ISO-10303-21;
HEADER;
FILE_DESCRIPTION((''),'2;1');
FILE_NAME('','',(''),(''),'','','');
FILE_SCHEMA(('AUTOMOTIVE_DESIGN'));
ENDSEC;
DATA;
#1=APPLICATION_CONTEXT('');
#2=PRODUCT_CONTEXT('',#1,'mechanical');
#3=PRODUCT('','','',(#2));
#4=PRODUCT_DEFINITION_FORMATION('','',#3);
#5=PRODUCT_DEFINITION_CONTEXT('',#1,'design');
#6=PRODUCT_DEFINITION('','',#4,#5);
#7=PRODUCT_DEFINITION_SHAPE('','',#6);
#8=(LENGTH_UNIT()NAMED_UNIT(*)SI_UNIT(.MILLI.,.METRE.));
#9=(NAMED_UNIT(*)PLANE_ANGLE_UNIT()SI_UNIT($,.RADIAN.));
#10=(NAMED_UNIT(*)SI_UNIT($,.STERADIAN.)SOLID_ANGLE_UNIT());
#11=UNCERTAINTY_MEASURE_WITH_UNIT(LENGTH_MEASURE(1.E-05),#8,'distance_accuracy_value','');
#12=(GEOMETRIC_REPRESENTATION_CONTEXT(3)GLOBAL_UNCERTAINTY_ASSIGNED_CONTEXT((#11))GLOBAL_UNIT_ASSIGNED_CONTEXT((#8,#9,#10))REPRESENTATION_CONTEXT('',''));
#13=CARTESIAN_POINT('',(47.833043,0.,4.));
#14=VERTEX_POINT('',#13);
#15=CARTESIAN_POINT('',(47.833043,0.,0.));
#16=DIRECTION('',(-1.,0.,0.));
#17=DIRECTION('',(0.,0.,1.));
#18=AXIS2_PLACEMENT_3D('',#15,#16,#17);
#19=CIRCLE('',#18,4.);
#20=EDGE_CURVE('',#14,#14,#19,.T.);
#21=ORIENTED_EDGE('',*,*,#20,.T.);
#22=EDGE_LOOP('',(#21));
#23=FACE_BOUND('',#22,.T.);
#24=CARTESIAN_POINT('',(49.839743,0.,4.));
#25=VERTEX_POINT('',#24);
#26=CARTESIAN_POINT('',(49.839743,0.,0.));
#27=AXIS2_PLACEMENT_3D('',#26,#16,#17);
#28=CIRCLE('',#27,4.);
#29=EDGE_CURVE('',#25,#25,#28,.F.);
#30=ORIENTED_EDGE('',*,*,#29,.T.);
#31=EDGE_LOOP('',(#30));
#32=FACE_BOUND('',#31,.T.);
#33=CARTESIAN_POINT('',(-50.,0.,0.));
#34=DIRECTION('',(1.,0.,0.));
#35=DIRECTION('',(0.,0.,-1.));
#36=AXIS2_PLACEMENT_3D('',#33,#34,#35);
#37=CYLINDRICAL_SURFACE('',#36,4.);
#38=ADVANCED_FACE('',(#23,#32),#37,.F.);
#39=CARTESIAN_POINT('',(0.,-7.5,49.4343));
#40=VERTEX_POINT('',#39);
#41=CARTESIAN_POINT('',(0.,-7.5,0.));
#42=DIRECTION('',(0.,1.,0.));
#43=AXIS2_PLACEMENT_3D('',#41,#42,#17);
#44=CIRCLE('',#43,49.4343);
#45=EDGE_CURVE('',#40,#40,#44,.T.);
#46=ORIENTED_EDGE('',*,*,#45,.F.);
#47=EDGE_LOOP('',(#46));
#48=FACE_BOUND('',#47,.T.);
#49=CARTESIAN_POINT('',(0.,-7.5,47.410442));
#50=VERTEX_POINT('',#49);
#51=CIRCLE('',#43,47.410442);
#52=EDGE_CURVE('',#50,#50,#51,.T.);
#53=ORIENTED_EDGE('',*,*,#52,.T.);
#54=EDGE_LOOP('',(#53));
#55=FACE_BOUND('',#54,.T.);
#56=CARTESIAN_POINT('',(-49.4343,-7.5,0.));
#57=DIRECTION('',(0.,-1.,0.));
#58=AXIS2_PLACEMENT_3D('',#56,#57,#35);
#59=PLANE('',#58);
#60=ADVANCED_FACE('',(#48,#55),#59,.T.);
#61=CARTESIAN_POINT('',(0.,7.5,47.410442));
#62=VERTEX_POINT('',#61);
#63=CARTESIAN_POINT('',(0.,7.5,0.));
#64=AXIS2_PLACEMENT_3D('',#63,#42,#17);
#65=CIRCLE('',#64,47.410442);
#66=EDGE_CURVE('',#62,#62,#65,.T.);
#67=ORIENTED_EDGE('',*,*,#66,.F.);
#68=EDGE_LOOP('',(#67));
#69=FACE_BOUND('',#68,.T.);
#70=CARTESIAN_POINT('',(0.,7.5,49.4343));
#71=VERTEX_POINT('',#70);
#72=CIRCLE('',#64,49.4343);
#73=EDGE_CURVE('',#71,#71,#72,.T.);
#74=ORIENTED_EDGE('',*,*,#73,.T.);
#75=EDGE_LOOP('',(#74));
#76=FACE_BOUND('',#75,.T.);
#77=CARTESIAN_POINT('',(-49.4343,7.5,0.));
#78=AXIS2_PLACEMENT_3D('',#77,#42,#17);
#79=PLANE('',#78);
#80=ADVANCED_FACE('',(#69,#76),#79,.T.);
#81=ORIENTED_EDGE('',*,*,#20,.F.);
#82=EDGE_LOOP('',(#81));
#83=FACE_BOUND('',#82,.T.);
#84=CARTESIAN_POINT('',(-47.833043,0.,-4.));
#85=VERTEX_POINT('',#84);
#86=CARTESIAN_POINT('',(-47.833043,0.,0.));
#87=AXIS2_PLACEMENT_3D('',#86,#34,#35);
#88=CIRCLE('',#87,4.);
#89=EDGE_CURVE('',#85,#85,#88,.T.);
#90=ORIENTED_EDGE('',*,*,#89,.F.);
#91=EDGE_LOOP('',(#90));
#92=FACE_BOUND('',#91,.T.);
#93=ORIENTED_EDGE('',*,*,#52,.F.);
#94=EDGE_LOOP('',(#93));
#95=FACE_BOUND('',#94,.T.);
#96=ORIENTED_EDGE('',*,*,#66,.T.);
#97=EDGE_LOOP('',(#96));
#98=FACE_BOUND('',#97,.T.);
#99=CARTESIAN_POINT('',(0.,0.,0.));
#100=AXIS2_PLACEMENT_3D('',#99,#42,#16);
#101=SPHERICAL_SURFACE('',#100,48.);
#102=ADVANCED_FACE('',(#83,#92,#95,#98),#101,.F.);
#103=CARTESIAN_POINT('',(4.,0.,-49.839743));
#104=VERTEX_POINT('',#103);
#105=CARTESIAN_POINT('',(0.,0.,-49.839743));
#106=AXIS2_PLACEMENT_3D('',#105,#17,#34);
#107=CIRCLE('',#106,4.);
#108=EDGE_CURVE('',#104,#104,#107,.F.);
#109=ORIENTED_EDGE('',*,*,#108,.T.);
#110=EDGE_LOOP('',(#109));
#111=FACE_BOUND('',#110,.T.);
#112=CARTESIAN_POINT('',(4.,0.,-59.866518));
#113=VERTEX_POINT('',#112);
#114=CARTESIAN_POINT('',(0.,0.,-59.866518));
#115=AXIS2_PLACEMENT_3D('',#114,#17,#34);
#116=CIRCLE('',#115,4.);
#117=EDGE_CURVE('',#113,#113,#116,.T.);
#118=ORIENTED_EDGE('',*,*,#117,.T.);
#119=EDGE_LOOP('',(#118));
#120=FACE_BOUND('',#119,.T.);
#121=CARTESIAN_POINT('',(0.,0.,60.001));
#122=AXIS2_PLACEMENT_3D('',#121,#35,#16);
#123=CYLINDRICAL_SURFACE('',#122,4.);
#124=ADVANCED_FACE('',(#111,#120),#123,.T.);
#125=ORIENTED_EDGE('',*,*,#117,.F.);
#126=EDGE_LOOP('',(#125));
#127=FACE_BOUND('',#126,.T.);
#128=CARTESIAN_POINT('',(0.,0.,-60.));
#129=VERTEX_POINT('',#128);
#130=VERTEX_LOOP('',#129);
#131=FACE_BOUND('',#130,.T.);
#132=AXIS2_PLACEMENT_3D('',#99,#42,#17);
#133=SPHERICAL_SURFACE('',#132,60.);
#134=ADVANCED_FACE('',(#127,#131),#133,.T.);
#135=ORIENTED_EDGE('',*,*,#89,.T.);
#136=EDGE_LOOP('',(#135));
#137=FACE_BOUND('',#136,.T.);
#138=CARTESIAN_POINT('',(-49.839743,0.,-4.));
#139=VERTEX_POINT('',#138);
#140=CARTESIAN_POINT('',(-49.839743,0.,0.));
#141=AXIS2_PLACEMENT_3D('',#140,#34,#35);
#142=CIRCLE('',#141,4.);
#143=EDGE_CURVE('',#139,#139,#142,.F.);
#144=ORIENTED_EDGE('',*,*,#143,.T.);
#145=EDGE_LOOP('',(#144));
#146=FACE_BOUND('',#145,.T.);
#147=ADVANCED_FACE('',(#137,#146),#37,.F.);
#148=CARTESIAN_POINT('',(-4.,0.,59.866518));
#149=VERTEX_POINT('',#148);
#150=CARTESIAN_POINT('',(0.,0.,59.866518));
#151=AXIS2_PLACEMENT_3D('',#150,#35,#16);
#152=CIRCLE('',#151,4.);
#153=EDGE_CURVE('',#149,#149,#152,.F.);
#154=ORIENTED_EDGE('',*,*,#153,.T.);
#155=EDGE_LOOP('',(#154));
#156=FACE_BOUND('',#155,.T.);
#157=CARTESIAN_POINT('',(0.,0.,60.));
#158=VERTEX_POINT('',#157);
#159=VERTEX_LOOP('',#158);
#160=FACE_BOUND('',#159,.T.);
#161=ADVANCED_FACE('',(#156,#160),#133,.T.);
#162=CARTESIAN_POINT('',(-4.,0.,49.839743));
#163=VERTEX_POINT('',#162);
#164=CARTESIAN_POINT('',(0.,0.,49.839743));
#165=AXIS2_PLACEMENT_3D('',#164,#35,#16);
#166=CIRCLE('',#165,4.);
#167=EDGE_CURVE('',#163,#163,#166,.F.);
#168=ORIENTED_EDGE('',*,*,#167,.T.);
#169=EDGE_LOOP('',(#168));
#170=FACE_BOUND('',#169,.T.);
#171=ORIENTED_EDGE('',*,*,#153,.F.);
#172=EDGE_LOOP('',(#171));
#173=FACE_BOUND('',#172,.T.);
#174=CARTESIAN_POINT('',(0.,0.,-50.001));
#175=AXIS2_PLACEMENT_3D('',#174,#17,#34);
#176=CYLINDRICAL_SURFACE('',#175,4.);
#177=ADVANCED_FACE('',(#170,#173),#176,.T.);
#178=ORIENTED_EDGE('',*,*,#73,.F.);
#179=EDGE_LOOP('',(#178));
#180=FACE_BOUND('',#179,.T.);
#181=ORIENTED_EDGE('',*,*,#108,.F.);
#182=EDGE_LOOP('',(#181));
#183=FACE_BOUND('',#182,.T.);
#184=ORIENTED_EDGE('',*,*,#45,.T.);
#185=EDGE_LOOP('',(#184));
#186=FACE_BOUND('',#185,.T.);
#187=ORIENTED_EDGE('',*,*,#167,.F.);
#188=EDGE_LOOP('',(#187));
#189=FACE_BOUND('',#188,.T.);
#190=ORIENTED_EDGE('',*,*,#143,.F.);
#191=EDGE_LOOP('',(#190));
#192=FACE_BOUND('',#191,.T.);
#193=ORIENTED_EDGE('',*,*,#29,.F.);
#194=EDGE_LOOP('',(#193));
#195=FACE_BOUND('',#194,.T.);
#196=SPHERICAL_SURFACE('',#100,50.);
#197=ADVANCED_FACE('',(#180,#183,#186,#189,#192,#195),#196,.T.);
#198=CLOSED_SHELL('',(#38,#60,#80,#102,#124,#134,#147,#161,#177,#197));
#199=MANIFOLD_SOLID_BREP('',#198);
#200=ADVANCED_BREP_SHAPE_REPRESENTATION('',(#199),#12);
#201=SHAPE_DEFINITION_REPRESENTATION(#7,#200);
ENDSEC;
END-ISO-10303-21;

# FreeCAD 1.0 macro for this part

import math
import FreeCAD as App
import Part
import Sketcher
Q = App.Units.Quantity

doc = App.newDocument("Part")
body = doc.addObject("PartDesign::Body", "Body")

# Sketch on XY plane
sketch1 = body.newObject("Sketcher::SketchObject", "Sketch")
sketch1.AttachmentSupport = (doc.getObject("XY_Plane"), [""])
sketch1.MapMode = "FlatFace"
sketch1.addGeometry([
    Part.LineSegment(App.Vector(-47.410442, 7.5, 0), App.Vector(-49.4343, 7.5, 0)),
    Part.ArcOfCircle(Part.Circle(App.Vector(0, 0, 0), App.Vector(0, 0, 1), 50), math.radians(171.373073), math.radians(188.626927)),
    Part.LineSegment(App.Vector(-49.4343, -7.5, 0), App.Vector(-47.410442, -7.5, 0)),
    Part.ArcOfCircle(Part.Circle(App.Vector(0, 0, 0), App.Vector(0, 0, 1), 48), math.radians(171.010701), math.radians(188.989299)),
], False)
sketch1.addConstraint([
    Sketcher.Constraint("Coincident", 0, 2, 1, 1),
    Sketcher.Constraint("Coincident", 1, 2, 2, 1),
    Sketcher.Constraint("Coincident", 2, 2, 3, 2),
    Sketcher.Constraint("Coincident", 3, 1, 0, 1),
    Sketcher.Constraint("Horizontal", 0),
    Sketcher.Constraint("Horizontal", 2),
    Sketcher.Constraint("Coincident", 1, 3, -1, 1),
    Sketcher.Constraint("Coincident", 3, 3, -1, 1),
    Sketcher.Constraint("Vertical", 0, 2, 1, 2),
    Sketcher.Constraint("Radius", 1, Q("50 mm")),
    Sketcher.Constraint("Radius", 3, Q("48 mm")),
    Sketcher.Constraint("DistanceY", 1, 2, 0, 2, Q("15 mm")),
])
revolution = body.newObject("PartDesign::Revolution", "Revolution")
revolution.Profile = sketch1
revolution.ReferenceAxis = (sketch1, ["V_Axis"])
revolution.Angle = 360

# Sketch on YZ plane
sketch2 = body.newObject("Sketcher::SketchObject", "Sketch001")
sketch2.AttachmentSupport = (doc.getObject("YZ_Plane"), [""])
sketch2.MapMode = "FlatFace"
sketch2.addGeometry(Part.Circle(App.Vector(0, 0, 0), App.Vector(0, 0, 1), 4), False)
sketch2.addConstraint([
    Sketcher.Constraint("Coincident", 0, 3, -1, 1),
    Sketcher.Constraint("Diameter", 0, Q("8 mm")),
])
pocket1 = body.newObject("PartDesign::Pocket", "Pocket")
pocket1.Profile = sketch2
pocket1.Type = "ThroughAll"
pocket1.Midplane = True

# Sketch on XY plane
sketch3 = body.newObject("Sketcher::SketchObject", "Sketch002")
sketch3.AttachmentSupport = (doc.getObject("XY_Plane"), [""])
sketch3.MapMode = "FlatFace"
sketch3.AttachmentOffset = App.Placement(App.Vector(0, 0, 60), App.Rotation())
sketch3.addGeometry(Part.Circle(App.Vector(0, 0, 0), App.Vector(0, 0, 1), 4), False)
sketch3.addConstraint([
    Sketcher.Constraint("Coincident", 0, 3, -1, 1),
    Sketcher.Constraint("Diameter", 0, Q("8 mm")),
])
pad1 = body.newObject("PartDesign::Pad", "Pad")
pad1.Profile = sketch3
pad1.Length = 10.160257
pad1.Reversed = True
doc.recompute()

mirrored = body.newObject("PartDesign::Mirrored", "Mirrored")
mirrored.Originals = [pad1]
mirrored.MirrorPlane = (doc.getObject("XY_Plane"), [""])
body.Tip = mirrored

# Sketch on YZ plane
sketch4 = body.newObject("Sketcher::SketchObject", "Sketch003")
sketch4.AttachmentSupport = (doc.getObject("YZ_Plane"), [""])
sketch4.MapMode = "FlatFace"
sketch4.addGeometry([
    Part.LineSegment(App.Vector(60, 0, 0), App.Vector(70, 0, 0)),
    Part.ArcOfCircle(Part.Circle(App.Vector(0, 0, 0), App.Vector(0, 0, 1), 70), math.radians(0), math.radians(180)),
    Part.LineSegment(App.Vector(-70, 0, 0), App.Vector(-60, 0, 0)),
    Part.ArcOfCircle(Part.Circle(App.Vector(0, 0, 0), App.Vector(0, 0, 1), 60), math.radians(0), math.radians(180)),
], False)
sketch4.addConstraint([
    Sketcher.Constraint("Coincident", 0, 2, 1, 1),
    Sketcher.Constraint("Coincident", 1, 2, 2, 1),
    Sketcher.Constraint("Coincident", 2, 2, 3, 2),
    Sketcher.Constraint("Coincident", 3, 1, 0, 1),
    Sketcher.Constraint("Horizontal", 0),
    Sketcher.Constraint("Horizontal", 2),
    Sketcher.Constraint("Coincident", 1, 3, -1, 1),
    Sketcher.Constraint("Coincident", 3, 3, -1, 1),
    Sketcher.Constraint("PointOnObject", 0, 2, -1),
    Sketcher.Constraint("PointOnObject", 1, 2, -1),
    Sketcher.Constraint("Radius", 1, Q("70 mm")),
    Sketcher.Constraint("Radius", 3, Q("60 mm")),
])
groove = body.newObject("PartDesign::Groove", "Groove")
groove.Profile = sketch4
groove.ReferenceAxis = (sketch4, ["H_Axis"])
groove.Angle = 360

doc.recompute()
